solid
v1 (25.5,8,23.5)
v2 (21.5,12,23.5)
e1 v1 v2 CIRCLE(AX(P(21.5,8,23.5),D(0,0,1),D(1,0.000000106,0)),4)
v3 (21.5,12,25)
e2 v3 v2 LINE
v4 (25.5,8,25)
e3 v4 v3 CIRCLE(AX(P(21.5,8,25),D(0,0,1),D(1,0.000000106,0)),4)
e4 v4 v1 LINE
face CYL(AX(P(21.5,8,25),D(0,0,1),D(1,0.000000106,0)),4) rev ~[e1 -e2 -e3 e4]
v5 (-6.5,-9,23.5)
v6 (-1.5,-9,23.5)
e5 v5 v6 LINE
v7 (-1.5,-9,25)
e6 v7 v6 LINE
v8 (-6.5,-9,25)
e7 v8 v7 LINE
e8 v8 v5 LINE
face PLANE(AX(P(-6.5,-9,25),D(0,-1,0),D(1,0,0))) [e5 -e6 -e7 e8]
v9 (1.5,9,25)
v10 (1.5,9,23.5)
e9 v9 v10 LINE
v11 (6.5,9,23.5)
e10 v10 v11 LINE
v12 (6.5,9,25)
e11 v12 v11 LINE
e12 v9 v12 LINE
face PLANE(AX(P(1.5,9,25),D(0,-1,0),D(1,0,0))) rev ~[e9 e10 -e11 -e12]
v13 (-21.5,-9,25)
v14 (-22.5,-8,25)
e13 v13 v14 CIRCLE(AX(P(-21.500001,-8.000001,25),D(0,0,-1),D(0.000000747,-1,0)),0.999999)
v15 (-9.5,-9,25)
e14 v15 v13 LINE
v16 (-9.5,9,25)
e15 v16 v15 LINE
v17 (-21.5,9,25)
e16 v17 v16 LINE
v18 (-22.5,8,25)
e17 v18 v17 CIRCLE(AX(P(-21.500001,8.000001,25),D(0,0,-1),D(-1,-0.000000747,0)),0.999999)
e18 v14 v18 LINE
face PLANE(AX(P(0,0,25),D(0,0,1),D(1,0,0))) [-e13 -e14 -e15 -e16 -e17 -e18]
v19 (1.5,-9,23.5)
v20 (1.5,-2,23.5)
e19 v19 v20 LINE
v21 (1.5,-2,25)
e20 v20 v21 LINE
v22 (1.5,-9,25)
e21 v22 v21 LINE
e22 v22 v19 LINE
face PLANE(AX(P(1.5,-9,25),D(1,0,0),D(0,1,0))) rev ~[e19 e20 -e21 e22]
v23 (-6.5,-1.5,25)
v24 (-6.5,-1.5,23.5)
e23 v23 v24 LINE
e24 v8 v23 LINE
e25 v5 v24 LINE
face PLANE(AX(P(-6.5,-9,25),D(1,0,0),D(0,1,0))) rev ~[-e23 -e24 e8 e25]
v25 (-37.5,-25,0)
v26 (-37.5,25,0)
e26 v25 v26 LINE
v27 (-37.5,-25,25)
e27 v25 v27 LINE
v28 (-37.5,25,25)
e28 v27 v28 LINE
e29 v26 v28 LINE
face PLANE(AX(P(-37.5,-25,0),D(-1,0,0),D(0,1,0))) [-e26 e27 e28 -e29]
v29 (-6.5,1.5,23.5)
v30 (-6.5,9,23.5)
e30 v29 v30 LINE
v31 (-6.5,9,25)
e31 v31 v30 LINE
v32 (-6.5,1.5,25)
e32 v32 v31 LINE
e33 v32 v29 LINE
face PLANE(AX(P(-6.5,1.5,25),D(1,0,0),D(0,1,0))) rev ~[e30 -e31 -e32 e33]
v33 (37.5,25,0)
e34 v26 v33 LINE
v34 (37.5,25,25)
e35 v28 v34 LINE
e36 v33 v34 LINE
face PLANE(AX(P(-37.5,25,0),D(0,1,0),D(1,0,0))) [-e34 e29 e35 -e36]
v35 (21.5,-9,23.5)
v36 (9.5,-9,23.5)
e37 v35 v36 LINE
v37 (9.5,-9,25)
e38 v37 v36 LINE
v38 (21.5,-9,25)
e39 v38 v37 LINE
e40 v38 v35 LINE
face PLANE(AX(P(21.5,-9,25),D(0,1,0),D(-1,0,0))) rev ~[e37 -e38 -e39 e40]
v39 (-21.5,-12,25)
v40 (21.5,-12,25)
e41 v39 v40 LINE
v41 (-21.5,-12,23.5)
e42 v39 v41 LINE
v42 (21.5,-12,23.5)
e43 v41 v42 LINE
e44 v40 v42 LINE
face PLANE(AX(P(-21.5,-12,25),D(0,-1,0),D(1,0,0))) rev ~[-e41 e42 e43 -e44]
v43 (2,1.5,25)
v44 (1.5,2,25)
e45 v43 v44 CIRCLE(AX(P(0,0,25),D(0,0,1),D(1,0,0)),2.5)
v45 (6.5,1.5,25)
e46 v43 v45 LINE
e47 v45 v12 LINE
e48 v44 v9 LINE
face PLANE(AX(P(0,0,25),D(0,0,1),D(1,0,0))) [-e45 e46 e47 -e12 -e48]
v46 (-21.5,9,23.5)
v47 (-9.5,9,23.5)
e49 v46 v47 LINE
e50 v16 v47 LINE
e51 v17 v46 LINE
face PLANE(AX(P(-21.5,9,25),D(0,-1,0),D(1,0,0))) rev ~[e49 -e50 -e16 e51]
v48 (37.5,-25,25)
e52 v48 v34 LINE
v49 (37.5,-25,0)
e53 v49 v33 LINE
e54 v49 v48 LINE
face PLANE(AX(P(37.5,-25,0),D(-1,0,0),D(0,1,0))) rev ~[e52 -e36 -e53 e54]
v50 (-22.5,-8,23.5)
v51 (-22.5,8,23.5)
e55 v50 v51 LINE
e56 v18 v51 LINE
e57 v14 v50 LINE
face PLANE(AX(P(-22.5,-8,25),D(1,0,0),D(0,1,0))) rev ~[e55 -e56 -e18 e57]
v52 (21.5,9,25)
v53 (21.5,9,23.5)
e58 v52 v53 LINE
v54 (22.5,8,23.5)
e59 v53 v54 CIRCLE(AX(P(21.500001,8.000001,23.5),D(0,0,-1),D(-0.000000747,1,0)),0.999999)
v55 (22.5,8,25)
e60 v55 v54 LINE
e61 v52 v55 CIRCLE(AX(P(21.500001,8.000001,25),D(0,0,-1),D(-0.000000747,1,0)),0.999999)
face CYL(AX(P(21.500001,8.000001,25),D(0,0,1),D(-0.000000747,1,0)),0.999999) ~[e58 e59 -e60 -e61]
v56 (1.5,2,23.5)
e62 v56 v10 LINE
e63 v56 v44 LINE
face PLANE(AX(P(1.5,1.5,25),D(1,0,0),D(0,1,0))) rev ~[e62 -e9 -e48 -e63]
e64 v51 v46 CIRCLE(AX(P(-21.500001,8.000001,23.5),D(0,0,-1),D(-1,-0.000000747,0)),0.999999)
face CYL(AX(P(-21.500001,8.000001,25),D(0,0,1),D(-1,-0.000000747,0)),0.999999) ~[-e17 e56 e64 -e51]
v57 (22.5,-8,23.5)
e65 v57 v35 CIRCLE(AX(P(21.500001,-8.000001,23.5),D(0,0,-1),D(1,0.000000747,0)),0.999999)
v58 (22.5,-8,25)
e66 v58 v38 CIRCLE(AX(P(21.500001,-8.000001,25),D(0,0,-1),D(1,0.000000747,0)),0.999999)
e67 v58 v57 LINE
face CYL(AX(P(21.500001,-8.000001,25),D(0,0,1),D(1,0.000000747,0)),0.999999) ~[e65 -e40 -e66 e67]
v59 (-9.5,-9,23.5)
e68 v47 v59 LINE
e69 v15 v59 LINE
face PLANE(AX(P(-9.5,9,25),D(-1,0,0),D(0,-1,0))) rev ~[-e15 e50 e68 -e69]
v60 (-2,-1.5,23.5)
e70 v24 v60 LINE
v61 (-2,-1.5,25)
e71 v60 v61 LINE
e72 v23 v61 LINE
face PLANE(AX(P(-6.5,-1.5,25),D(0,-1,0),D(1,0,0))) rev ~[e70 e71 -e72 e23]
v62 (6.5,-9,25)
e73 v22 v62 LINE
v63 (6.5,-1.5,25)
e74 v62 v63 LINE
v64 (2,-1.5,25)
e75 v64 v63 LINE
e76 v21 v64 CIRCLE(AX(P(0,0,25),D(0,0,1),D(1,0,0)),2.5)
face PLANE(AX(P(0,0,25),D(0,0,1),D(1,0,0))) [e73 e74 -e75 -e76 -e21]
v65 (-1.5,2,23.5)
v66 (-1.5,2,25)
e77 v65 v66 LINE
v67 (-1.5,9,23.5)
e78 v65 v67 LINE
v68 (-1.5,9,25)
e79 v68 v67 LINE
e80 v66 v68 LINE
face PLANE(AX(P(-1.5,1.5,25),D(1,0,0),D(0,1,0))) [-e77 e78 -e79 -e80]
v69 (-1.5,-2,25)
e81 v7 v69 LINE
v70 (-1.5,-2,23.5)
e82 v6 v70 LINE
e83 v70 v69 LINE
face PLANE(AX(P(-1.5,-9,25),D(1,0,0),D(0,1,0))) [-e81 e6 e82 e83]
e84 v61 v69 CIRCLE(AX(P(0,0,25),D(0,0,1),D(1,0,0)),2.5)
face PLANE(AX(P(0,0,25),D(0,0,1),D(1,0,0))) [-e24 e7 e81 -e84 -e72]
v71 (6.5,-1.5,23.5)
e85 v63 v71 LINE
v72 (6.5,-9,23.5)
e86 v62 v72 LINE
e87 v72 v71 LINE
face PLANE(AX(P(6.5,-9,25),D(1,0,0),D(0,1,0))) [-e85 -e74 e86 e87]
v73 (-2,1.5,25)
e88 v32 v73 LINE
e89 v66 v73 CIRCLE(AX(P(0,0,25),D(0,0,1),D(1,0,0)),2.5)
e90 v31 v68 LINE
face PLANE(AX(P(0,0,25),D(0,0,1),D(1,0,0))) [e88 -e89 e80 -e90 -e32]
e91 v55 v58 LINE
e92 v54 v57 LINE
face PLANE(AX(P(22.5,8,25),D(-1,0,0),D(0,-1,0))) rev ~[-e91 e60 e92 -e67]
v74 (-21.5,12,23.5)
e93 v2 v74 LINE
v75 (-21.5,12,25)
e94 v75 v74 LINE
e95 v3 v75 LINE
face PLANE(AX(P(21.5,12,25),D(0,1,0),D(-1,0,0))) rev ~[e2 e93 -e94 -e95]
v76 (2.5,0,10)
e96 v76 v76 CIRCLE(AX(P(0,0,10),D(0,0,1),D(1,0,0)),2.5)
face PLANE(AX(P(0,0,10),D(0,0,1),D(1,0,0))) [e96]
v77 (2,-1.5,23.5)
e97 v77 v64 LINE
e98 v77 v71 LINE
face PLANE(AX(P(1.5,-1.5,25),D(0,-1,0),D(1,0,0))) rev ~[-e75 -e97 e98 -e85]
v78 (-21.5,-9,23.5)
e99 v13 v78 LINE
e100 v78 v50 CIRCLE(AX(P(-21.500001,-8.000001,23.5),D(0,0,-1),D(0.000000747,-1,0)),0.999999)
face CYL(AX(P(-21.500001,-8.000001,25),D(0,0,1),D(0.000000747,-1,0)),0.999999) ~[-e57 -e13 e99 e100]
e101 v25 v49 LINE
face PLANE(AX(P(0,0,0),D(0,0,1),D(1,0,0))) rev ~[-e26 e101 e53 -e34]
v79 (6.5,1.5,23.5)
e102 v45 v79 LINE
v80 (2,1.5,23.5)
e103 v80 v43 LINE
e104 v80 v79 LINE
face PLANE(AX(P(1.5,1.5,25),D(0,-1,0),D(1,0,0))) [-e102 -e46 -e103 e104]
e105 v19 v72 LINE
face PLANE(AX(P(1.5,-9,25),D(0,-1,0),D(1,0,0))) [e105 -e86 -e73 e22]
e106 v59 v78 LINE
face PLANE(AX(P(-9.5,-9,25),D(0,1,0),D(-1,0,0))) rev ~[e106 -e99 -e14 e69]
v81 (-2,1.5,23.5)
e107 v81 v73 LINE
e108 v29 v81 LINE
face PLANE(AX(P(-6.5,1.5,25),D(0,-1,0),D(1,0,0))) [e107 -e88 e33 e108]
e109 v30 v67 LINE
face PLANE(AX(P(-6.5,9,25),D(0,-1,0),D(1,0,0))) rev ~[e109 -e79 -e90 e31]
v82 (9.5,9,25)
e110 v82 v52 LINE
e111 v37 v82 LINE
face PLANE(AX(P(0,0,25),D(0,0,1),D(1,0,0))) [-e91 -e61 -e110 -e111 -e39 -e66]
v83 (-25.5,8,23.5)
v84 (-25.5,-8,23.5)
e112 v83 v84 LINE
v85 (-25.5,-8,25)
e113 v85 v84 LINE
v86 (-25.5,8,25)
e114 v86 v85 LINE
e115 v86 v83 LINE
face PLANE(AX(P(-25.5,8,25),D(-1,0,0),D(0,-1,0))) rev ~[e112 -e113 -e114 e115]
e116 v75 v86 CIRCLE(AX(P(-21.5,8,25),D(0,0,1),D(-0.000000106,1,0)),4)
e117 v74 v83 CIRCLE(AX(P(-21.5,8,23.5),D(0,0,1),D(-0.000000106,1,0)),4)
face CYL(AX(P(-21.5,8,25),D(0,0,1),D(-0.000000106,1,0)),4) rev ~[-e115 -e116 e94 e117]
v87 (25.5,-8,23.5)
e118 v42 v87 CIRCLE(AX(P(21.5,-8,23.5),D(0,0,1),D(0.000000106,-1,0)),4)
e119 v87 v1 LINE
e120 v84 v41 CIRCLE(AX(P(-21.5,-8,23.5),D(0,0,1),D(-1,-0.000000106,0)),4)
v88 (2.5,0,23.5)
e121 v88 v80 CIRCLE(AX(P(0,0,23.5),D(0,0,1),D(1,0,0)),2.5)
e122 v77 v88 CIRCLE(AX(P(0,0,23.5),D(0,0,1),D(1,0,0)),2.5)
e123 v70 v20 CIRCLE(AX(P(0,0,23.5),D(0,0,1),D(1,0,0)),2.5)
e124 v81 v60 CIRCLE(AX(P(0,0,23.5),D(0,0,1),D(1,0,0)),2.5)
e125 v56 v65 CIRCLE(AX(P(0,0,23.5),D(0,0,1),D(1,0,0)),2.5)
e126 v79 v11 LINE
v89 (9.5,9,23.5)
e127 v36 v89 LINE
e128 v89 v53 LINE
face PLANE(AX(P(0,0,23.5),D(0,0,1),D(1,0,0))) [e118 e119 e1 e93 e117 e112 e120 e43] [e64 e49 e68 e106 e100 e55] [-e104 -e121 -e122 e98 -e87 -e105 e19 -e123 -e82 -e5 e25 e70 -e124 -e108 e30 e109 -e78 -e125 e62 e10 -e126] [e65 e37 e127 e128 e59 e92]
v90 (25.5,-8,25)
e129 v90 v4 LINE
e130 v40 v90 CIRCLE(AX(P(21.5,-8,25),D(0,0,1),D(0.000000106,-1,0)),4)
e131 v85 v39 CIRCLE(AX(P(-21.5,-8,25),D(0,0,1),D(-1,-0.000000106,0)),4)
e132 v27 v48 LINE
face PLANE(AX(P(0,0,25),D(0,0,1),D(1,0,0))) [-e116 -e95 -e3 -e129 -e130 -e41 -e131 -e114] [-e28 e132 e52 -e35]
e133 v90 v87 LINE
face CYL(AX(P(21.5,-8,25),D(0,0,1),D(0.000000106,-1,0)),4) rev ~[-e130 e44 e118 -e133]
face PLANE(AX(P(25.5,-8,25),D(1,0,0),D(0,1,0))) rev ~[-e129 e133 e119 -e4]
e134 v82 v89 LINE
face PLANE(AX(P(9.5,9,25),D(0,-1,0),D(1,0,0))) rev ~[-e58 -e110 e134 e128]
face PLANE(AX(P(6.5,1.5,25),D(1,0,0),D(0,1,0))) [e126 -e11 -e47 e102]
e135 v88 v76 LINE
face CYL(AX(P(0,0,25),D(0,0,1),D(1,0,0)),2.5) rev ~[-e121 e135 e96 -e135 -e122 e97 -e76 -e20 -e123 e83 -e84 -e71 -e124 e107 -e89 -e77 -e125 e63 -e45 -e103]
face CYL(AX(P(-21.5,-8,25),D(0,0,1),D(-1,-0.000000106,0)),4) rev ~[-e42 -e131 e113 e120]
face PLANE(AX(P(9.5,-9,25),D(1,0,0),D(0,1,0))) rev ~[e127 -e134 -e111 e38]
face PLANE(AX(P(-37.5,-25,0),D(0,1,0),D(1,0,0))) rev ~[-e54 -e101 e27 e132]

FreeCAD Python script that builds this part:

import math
import FreeCAD as App
import Part
import Sketcher

V = App.Vector


def add_polygon(sketch, points):
    """Adds a closed chain of lines whose ends are joined by coincident constraints."""
    first, n = sketch.GeometryCount, len(points)
    for a, b in zip(points, points[1:] + points[:1]):
        sketch.addGeometry(Part.LineSegment(App.Vector(*a, 0), App.Vector(*b, 0)), False)
    for i in range(n):
        sketch.addConstraint(Sketcher.Constraint("Coincident", first + i, 2, first + (i + 1) % n, 1))

doc = App.newDocument("Part")
body = doc.addObject("PartDesign::Body", "Body")

# Sketch on XY plane
sketch1 = body.newObject("Sketcher::SketchObject", "Sketch")
sketch1.AttachmentSupport = (doc.getObject("XY_Plane"), [""])
sketch1.MapMode = "FlatFace"
add_polygon(sketch1, [(-38, 25), (-38, -25), (38, -25), (38, 25)])  # lines 0-3
sketch1.addConstraint([
    Sketcher.Constraint("Vertical", 0),
    Sketcher.Constraint("Horizontal", 1),
    Sketcher.Constraint("Vertical", 2),
    Sketcher.Constraint("Horizontal", 3),
    Sketcher.Constraint("Symmetric", 0, 2, 2, 2, -1, 1),
    Sketcher.Constraint("DistanceX", 1, 1, 1, 2, 75.0),
    Sketcher.Constraint("DistanceY", 0, 2, 0, 1, 50.0),
])
pad1 = body.newObject("PartDesign::Pad", "Pad")
pad1.Profile = sketch1
pad1.Length = 25

# Sketch on XY plane
sketch2 = body.newObject("Sketcher::SketchObject", "Sketch001")
sketch2.AttachmentSupport = (doc.getObject("XY_Plane"), [""])
sketch2.MapMode = "FlatFace"
sketch2.AttachmentOffset = App.Placement(V(0, 0, 25), App.Rotation())
sketch2.addGeometry(Part.LineSegment(V(-21.5, -12, 0), V(21.5, -12, 0)), False)  # 0
sketch2.addGeometry(Part.ArcOfCircle(Part.Circle(V(21.5, -8, 0), V(0, 0, 1), 4), math.radians(-90), math.radians(0)), False)  # 1
sketch2.addGeometry(Part.LineSegment(V(25.5, -8, 0), V(25.5, 8, 0)), False)  # 2
sketch2.addGeometry(Part.ArcOfCircle(Part.Circle(V(21.5, 8, 0), V(0, 0, 1), 4), math.radians(0), math.radians(90)), False)  # 3
sketch2.addGeometry(Part.LineSegment(V(21.5, 12, 0), V(-21.5, 12, 0)), False)  # 4
sketch2.addGeometry(Part.ArcOfCircle(Part.Circle(V(-21.5, 8, 0), V(0, 0, 1), 4), math.radians(90), math.radians(180)), False)  # 5
sketch2.addGeometry(Part.LineSegment(V(-25.5, 8, 0), V(-25.5, -8, 0)), False)  # 6
sketch2.addGeometry(Part.ArcOfCircle(Part.Circle(V(-21.5, -8, 0), V(0, 0, 1), 4), math.radians(-180), math.radians(-90)), False)  # 7
add_polygon(sketch2, [(-1.5, -9), (-6.5, -9), (-6.5, -1.5), (-1.5, -1.5)])  # lines 8-11
add_polygon(sketch2, [(6.5, -9), (1.5, -9), (1.5, -1.5), (6.5, -1.5)])  # lines 12-15
sketch2.addGeometry(Part.LineSegment(V(-21.5, 9, 0), V(-9.5, 9, 0)), False)  # 16
sketch2.addGeometry(Part.LineSegment(V(-9.5, 9, 0), V(-9.5, -9, 0)), False)  # 17
sketch2.addGeometry(Part.LineSegment(V(-9.5, -9, 0), V(-21.5, -9, 0)), False)  # 18
sketch2.addGeometry(Part.ArcOfCircle(Part.Circle(V(-21.5, -8, 0), V(0, 0, 1), 1), math.radians(180), math.radians(270)), False)  # 19
sketch2.addGeometry(Part.LineSegment(V(-22.5, -8, 0), V(-22.5, 8, 0)), False)  # 20
sketch2.addGeometry(Part.ArcOfCircle(Part.Circle(V(-21.5, 8, 0), V(0, 0, 1), 1), math.radians(90), math.radians(180)), False)  # 21
add_polygon(sketch2, [(-1.5, 1.5), (-6.5, 1.5), (-6.5, 9), (-1.5, 9)])  # lines 22-25
sketch2.addGeometry(Part.LineSegment(V(22.5, 8, 0), V(22.5, -8, 0)), False)  # 26
sketch2.addGeometry(Part.ArcOfCircle(Part.Circle(V(21.5, -8, 0), V(0, 0, 1), 1), math.radians(-90), math.radians(0)), False)  # 27
sketch2.addGeometry(Part.LineSegment(V(21.5, -9, 0), V(9.5, -9, 0)), False)  # 28
sketch2.addGeometry(Part.LineSegment(V(9.5, -9, 0), V(9.5, 9, 0)), False)  # 29
sketch2.addGeometry(Part.LineSegment(V(9.5, 9, 0), V(21.5, 9, 0)), False)  # 30
sketch2.addGeometry(Part.ArcOfCircle(Part.Circle(V(21.5, 8, 0), V(0, 0, 1), 1), math.radians(0), math.radians(90)), False)  # 31
add_polygon(sketch2, [(6.5, 1.5), (1.5, 1.5), (1.5, 9), (6.5, 9)])  # lines 32-35
sketch2.addConstraint([
    Sketcher.Constraint("Tangent", 0, 2, 1, 1),
    Sketcher.Constraint("Tangent", 1, 2, 2, 1),
    Sketcher.Constraint("Tangent", 2, 2, 3, 1),
    Sketcher.Constraint("Tangent", 3, 2, 4, 1),
    Sketcher.Constraint("Tangent", 4, 2, 5, 1),
    Sketcher.Constraint("Tangent", 5, 2, 6, 1),
    Sketcher.Constraint("Tangent", 6, 2, 7, 1),
    Sketcher.Constraint("Tangent", 7, 2, 0, 1),
    Sketcher.Constraint("Coincident", 16, 2, 17, 1),
    Sketcher.Constraint("Coincident", 17, 2, 18, 1),
    Sketcher.Constraint("Tangent", 18, 2, 19, 2),
    Sketcher.Constraint("Tangent", 19, 1, 20, 1),
    Sketcher.Constraint("Tangent", 20, 2, 21, 2),
    Sketcher.Constraint("Tangent", 21, 1, 16, 1),
    Sketcher.Constraint("Tangent", 26, 2, 27, 2),
    Sketcher.Constraint("Tangent", 27, 1, 28, 1),
    Sketcher.Constraint("Coincident", 28, 2, 29, 1),
    Sketcher.Constraint("Coincident", 29, 2, 30, 1),
    Sketcher.Constraint("Tangent", 30, 2, 31, 2),
    Sketcher.Constraint("Tangent", 31, 1, 26, 1),
    Sketcher.Constraint("Horizontal", 0),
    Sketcher.Constraint("Vertical", 2),
    Sketcher.Constraint("Horizontal", 4),
    Sketcher.Constraint("Vertical", 6),
    Sketcher.Constraint("Horizontal", 8),
    Sketcher.Constraint("Vertical", 9),
    Sketcher.Constraint("Horizontal", 10),
    Sketcher.Constraint("Vertical", 11),
    Sketcher.Constraint("Horizontal", 12),
    Sketcher.Constraint("Vertical", 13),
    Sketcher.Constraint("Horizontal", 14),
    Sketcher.Constraint("Vertical", 15),
    Sketcher.Constraint("Horizontal", 16),
    Sketcher.Constraint("Vertical", 17),
    Sketcher.Constraint("Horizontal", 18),
    Sketcher.Constraint("Vertical", 20),
    Sketcher.Constraint("Horizontal", 22),
    Sketcher.Constraint("Vertical", 23),
    Sketcher.Constraint("Horizontal", 24),
    Sketcher.Constraint("Vertical", 25),
    Sketcher.Constraint("Vertical", 26),
    Sketcher.Constraint("Horizontal", 28),
    Sketcher.Constraint("Vertical", 29),
    Sketcher.Constraint("Horizontal", 30),
    Sketcher.Constraint("Horizontal", 32),
    Sketcher.Constraint("Vertical", 33),
    Sketcher.Constraint("Horizontal", 34),
    Sketcher.Constraint("Vertical", 35),
    Sketcher.Constraint("Coincident", 19, 3, 7, 3),
    Sketcher.Constraint("Coincident", 21, 3, 5, 3),
    Sketcher.Constraint("Coincident", 27, 3, 1, 3),
    Sketcher.Constraint("Coincident", 31, 3, 3, 3),
    Sketcher.Constraint("Equal", 1, 3),
    Sketcher.Constraint("Equal", 3, 5),
    Sketcher.Constraint("Equal", 5, 7),
    Sketcher.Constraint("Equal", 21, 27),
    Sketcher.Constraint("Symmetric", 1, 3, 5, 3, -1, 1),
    Sketcher.Constraint("Symmetric", 14, 2, 22, 2, -1, 1),
    Sketcher.Constraint("Symmetric", 12, 2, 24, 2, -1, 1),
    Sketcher.Constraint("Symmetric", 10, 2, 32, 2, -1, 1),
    Sketcher.Constraint("Symmetric", 8, 2, 34, 2, -1, 1),
    Sketcher.Constraint("Symmetric", 11, 2, 12, 2, -2),
    Sketcher.Constraint("Symmetric", 9, 2, 14, 2, -2),
    Sketcher.Constraint("Horizontal", 15, 2, 17, 2),
    Sketcher.Constraint("Equal", 18, 28),
    Sketcher.Constraint("Radius", 1, 4.0),
    Sketcher.Constraint("Radius", 19, 0.999999),
    Sketcher.Constraint("DistanceX", 0, 1, 0, 2, 43.0),
    Sketcher.Constraint("DistanceX", 8, 2, 8, 1, 5.0),
    Sketcher.Constraint("DistanceX", 16, 1, 16, 2, 12.0),
    Sketcher.Constraint("DistanceY", 2, 1, 2, 2, 16.0),
    Sketcher.Constraint("DistanceY", 9, 1, 9, 2, 7.5),
    Sketcher.Constraint("DistanceX", 7, 3, 8, 2, 15.0),
])
pocket1 = body.newObject("PartDesign::Pocket", "Pocket")
pocket1.Profile = sketch2
pocket1.Length = 1.5

# Sketch on XY plane
sketch3 = body.newObject("Sketcher::SketchObject", "Sketch002")
sketch3.AttachmentSupport = (doc.getObject("XY_Plane"), [""])
sketch3.MapMode = "FlatFace"
sketch3.AttachmentOffset = App.Placement(V(0, 0, 25), App.Rotation())
sketch3.addGeometry(Part.Circle(V(0, 0, 0), V(0, 0, 1), 2.5), False)
sketch3.addConstraint([
    Sketcher.Constraint("Coincident", 0, 3, -1, 1),
    Sketcher.Constraint("Diameter", 0, 5.0),
])
pocket2 = body.newObject("PartDesign::Pocket", "Pocket001")
pocket2.Profile = sketch3
pocket2.Length = 15

doc.recompute()
